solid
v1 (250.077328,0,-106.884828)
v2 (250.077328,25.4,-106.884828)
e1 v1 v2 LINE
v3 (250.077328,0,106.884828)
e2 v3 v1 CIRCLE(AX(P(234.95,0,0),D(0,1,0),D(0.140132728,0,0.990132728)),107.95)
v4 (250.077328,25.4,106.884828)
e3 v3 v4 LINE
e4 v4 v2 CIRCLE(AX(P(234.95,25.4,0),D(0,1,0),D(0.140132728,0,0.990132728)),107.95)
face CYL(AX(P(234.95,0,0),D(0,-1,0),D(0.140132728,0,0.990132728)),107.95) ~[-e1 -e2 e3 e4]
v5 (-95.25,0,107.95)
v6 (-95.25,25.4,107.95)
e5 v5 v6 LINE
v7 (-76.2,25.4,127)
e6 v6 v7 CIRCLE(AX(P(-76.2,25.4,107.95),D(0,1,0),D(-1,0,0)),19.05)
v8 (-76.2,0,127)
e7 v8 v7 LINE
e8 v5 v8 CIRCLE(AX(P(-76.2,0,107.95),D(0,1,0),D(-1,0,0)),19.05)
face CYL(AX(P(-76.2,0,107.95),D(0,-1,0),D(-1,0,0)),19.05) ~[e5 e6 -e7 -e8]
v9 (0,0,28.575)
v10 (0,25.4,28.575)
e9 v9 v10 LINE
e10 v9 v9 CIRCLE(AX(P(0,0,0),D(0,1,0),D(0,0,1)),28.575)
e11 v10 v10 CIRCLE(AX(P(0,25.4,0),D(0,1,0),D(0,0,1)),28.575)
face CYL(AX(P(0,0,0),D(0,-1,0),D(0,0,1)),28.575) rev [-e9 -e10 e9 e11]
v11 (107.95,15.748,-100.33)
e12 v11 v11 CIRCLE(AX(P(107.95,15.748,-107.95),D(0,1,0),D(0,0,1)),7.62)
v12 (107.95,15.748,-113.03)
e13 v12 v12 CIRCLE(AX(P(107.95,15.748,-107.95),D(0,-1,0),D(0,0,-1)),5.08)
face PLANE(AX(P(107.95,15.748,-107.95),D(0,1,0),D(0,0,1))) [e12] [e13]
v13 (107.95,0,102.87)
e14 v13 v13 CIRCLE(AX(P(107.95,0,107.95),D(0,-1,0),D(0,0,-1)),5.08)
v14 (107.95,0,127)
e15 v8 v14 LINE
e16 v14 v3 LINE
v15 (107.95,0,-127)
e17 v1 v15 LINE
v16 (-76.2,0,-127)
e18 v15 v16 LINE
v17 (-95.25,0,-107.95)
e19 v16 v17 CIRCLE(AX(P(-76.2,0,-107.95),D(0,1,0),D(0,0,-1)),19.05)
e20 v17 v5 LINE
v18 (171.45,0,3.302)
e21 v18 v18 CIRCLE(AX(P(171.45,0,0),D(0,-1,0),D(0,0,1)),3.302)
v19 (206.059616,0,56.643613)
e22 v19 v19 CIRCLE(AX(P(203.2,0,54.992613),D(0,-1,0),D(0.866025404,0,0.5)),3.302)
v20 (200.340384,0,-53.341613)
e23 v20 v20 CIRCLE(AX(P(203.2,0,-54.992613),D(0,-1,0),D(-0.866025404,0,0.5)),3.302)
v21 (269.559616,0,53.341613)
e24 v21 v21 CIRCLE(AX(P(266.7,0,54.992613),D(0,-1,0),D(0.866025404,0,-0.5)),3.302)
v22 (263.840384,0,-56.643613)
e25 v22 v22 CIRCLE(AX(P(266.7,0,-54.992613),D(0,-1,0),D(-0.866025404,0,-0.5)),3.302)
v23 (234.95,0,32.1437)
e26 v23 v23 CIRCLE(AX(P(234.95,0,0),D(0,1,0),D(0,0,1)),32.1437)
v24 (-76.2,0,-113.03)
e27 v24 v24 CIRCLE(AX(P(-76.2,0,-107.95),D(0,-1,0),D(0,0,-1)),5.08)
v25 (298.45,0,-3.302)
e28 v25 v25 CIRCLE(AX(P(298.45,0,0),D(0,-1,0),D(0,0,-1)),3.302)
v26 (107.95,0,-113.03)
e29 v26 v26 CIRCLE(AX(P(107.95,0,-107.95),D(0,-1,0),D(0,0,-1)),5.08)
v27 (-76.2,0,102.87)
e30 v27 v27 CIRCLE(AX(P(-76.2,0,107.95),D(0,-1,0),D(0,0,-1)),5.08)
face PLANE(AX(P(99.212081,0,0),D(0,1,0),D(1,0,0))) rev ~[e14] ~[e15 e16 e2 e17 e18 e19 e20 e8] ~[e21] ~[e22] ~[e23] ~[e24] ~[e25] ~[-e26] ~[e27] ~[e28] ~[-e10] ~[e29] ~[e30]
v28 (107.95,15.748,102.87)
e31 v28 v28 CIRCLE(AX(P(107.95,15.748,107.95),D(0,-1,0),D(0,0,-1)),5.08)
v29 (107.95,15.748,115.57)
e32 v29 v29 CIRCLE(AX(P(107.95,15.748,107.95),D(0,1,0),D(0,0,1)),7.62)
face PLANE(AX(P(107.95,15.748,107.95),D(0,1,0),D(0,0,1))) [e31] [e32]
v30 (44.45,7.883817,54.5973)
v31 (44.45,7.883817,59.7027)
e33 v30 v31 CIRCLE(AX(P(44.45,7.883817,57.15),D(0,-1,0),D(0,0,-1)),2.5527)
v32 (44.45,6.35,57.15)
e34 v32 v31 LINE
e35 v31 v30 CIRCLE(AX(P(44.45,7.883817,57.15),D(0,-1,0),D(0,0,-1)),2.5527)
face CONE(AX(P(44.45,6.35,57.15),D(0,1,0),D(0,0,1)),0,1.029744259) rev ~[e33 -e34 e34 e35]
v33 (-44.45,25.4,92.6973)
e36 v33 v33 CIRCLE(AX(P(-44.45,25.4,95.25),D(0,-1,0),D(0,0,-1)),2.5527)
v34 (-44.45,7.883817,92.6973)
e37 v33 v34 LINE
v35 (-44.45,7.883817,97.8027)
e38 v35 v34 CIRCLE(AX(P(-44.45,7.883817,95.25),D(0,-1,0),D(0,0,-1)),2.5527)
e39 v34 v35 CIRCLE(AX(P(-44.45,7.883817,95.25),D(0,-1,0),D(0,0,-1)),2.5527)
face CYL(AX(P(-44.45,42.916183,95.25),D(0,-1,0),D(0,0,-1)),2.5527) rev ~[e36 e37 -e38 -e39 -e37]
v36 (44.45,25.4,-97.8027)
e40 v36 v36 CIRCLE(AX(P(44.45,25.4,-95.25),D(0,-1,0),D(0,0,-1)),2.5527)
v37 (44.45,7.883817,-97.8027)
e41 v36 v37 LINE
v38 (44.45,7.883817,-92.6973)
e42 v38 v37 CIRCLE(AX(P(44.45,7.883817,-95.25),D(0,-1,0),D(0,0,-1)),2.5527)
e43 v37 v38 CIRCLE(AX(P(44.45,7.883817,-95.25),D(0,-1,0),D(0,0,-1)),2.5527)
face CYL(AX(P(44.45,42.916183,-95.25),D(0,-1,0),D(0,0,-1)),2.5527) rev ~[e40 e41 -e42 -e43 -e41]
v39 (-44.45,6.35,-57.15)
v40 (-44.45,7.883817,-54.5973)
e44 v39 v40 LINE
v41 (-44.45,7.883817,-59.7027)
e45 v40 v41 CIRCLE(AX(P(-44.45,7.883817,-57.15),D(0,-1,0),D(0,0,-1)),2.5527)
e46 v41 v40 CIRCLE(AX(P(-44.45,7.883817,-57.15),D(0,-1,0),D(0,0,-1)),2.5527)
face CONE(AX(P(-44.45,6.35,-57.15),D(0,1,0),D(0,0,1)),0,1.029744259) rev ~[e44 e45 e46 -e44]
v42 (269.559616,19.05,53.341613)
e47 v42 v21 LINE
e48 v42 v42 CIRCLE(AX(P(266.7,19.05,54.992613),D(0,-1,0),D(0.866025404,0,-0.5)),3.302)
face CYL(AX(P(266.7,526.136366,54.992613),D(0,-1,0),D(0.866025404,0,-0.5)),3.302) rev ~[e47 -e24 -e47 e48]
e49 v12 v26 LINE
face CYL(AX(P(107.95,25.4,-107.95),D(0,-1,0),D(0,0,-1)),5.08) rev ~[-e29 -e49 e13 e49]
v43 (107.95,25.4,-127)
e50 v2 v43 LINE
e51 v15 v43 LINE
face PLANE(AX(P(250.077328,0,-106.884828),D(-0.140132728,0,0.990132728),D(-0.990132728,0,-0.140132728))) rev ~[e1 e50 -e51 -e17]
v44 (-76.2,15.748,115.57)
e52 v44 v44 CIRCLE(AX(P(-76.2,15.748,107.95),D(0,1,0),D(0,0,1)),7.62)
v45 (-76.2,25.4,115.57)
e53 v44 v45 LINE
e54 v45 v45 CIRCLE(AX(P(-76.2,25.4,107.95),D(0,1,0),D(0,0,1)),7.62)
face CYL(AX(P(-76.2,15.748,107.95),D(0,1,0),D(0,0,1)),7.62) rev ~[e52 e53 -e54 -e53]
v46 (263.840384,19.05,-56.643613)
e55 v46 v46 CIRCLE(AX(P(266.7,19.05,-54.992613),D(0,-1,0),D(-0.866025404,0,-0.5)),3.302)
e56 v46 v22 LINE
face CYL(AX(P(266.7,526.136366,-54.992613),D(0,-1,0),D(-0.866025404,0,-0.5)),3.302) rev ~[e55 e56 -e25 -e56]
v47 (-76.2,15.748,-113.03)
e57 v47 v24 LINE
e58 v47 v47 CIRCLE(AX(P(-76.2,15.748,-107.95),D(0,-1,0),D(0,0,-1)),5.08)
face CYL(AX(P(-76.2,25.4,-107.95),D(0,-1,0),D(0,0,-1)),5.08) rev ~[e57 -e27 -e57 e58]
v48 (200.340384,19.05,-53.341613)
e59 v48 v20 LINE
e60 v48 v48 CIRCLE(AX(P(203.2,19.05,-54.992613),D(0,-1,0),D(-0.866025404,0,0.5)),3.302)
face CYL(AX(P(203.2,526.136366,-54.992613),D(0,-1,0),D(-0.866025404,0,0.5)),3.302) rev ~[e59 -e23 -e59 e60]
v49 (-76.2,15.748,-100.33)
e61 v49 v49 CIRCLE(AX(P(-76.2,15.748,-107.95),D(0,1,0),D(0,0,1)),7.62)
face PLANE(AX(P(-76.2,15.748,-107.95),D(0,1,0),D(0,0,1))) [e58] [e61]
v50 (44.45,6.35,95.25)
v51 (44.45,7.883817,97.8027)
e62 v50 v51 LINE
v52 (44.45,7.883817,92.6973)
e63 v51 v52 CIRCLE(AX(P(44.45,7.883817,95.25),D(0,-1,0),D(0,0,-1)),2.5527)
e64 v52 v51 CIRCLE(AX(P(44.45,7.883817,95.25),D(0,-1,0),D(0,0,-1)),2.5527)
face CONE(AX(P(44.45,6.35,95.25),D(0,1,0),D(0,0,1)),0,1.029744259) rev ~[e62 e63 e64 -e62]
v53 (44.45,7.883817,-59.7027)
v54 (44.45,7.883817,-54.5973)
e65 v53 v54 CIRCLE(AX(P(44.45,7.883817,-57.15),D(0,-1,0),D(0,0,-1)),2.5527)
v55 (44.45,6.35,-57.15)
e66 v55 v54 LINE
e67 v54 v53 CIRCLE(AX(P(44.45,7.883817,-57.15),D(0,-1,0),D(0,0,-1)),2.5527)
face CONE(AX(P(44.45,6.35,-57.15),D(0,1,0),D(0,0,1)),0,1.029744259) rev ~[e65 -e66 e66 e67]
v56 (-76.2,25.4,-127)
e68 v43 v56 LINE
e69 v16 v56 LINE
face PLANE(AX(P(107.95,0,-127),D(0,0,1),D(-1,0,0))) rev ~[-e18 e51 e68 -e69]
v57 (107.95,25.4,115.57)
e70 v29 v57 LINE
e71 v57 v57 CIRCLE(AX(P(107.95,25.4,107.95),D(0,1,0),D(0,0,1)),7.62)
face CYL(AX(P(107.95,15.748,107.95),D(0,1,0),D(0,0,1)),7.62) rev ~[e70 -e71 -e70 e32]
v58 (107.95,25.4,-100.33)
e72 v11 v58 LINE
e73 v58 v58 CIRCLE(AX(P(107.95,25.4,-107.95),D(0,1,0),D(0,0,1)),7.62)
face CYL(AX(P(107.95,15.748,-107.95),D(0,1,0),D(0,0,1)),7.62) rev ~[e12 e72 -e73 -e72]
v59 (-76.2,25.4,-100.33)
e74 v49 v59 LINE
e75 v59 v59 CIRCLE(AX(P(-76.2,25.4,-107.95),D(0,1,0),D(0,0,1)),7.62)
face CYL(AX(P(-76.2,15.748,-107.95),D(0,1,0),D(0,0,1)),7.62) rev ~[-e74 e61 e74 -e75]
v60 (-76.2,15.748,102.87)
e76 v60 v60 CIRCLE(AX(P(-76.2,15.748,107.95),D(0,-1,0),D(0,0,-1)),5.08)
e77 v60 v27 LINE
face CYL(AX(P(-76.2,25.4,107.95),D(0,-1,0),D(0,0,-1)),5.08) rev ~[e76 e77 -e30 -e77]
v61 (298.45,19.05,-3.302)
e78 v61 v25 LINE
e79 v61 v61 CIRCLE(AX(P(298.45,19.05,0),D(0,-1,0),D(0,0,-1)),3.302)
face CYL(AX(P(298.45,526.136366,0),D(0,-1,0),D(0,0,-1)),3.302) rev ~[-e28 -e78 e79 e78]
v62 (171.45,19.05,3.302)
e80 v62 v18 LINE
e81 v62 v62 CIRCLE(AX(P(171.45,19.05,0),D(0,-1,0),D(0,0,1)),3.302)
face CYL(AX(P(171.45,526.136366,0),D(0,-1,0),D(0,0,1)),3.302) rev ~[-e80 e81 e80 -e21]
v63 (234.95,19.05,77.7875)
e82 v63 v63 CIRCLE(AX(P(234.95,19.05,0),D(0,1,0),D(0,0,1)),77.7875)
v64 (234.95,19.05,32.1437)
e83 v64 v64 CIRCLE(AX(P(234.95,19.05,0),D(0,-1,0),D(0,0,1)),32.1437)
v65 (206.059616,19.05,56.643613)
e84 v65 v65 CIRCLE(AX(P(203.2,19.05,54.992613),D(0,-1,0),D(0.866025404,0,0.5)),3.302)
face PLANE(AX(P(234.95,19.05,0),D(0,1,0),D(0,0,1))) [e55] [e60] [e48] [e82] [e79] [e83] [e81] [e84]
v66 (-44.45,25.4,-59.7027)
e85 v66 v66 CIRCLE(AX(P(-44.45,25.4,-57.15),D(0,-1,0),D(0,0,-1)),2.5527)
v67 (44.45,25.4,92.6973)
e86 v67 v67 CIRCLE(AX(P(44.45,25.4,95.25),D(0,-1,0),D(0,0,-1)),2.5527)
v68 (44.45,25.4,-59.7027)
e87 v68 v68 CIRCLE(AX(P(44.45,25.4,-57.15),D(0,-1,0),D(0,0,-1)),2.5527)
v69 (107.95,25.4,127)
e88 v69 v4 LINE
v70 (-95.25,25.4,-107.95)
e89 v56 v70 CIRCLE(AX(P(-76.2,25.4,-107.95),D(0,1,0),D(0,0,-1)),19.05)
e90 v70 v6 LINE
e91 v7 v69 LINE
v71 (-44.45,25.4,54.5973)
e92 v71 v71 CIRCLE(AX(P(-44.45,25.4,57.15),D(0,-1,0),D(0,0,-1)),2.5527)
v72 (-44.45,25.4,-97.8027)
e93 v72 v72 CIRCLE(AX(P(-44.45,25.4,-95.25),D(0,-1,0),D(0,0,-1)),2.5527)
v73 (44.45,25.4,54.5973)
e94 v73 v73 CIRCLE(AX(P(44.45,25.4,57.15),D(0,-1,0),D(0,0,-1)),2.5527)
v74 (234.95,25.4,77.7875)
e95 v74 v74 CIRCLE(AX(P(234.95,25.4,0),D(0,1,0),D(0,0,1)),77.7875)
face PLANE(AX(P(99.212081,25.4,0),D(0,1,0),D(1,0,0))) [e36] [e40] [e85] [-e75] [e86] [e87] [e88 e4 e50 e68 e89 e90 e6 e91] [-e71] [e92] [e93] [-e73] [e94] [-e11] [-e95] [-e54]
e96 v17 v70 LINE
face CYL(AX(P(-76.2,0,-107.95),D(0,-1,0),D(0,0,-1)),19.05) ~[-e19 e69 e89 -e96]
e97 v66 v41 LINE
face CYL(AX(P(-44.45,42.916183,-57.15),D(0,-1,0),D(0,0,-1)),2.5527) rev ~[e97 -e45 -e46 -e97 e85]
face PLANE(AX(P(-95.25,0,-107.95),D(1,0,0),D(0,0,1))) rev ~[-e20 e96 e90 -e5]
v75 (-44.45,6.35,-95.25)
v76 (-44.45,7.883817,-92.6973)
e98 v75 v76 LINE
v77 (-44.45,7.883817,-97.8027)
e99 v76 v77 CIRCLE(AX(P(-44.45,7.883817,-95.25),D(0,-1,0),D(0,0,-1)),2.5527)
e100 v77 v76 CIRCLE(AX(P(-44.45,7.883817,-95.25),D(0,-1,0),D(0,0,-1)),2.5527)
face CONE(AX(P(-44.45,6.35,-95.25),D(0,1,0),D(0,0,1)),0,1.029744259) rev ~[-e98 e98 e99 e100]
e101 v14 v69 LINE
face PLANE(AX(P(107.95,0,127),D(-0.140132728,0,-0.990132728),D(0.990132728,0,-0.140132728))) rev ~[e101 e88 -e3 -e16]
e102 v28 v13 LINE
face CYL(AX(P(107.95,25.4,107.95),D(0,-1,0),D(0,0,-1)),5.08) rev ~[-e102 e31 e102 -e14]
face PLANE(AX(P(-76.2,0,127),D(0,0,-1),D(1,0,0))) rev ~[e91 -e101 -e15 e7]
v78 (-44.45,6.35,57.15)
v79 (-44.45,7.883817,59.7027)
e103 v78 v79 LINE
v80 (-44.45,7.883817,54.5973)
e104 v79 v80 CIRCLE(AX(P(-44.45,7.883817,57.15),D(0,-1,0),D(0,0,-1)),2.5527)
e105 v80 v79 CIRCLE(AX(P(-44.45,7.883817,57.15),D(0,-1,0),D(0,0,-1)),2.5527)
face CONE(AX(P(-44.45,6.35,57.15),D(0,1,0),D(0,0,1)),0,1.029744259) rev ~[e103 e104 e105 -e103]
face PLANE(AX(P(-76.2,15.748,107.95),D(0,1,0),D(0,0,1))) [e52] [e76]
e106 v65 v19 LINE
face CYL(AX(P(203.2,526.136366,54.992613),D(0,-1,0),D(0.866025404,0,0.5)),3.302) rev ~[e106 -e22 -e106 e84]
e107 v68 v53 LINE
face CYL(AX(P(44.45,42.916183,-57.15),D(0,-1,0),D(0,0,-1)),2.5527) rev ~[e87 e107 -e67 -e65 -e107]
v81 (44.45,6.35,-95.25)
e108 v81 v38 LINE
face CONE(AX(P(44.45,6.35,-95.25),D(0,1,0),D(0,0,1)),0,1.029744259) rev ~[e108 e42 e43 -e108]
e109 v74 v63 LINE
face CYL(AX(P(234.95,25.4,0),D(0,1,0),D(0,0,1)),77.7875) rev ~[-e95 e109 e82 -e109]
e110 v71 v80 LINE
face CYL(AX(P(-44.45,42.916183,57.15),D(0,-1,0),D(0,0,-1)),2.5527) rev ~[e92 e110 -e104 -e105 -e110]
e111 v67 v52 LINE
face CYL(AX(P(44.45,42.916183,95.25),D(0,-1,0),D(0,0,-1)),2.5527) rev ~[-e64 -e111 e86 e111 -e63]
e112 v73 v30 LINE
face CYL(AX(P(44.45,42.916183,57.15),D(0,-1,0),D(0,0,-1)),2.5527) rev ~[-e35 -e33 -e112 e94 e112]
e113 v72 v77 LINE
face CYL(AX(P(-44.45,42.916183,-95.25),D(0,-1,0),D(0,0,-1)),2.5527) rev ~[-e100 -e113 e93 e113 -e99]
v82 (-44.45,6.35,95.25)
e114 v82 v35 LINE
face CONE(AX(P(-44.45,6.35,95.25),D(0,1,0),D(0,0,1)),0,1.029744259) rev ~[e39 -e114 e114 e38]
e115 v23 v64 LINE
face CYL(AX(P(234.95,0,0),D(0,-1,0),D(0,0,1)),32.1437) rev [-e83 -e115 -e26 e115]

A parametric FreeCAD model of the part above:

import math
import FreeCAD as App
import Part
import Sketcher

V = App.Vector
Q = App.Units.Quantity

doc = App.newDocument("Part")
body = doc.addObject("PartDesign::Body", "Body")

sketch1 = body.newObject("Sketcher::SketchObject", "Sketch")
sketch1.AttachmentSupport = (doc.getObject("XZ_Plane"), [""])
sketch1.MapMode = "FlatFace"
sketch1.addGeometry([
    Part.LineSegment(V(-95.25, -107.95, 0), V(-95.25, 107.95, 0)),
    Part.ArcOfCircle(Part.Circle(V(-76.2, 107.95, 0), V(0, 0, 1), 19.05), math.radians(90), math.radians(180)),
    Part.LineSegment(V(-76.2, 127, 0), V(107.95, 127, 0)),
    Part.LineSegment(V(107.95, 127, 0), V(250.077328, 106.884828, 0)),
    Part.ArcOfCircle(Part.Circle(V(234.95, 0, 0), V(0, 0, 1), 107.95), math.radians(-81.944473), math.radians(81.944473)),
    Part.LineSegment(V(250.077328, -106.884828, 0), V(107.95, -127, 0)),
    Part.LineSegment(V(107.95, -127, 0), V(-76.2, -127, 0)),
    Part.ArcOfCircle(Part.Circle(V(-76.2, -107.95, 0), V(0, 0, 1), 19.05), math.radians(180), math.radians(270)),
    Part.Circle(V(0, 0, 0), V(0, 0, 1), 28.575),
    Part.Circle(V(234.95, 0, 0), V(0, 0, 1), 32.1437),
], False)
sketch1.addConstraint([
    Sketcher.Constraint("Tangent", 0, 2, 1, 2),
    Sketcher.Constraint("Tangent", 1, 1, 2, 1),
    Sketcher.Constraint("Coincident", 2, 2, 3, 1),
    Sketcher.Constraint("Tangent", 3, 2, 4, 2),
    Sketcher.Constraint("Tangent", 4, 1, 5, 1),
    Sketcher.Constraint("Coincident", 5, 2, 6, 1),
    Sketcher.Constraint("Tangent", 6, 2, 7, 2),
    Sketcher.Constraint("Tangent", 7, 1, 0, 1),
    Sketcher.Constraint("Vertical", 0),
    Sketcher.Constraint("Horizontal", 2),
    Sketcher.Constraint("Horizontal", 6),
    Sketcher.Constraint("Coincident", 8, 3, -1, 1),
    Sketcher.Constraint("Coincident", 9, 3, 4, 3),
    Sketcher.Constraint("Equal", 1, 7),
    Sketcher.Constraint("Symmetric", 3, 2, 4, 1, -1),
    Sketcher.Constraint("Vertical", 2, 2, 5, 2),
    Sketcher.Constraint("Diameter", 8, Q("2.25 in")),
    Sketcher.Constraint("Radius", 1, Q("0.75 in")),
    Sketcher.Constraint("Radius", 4, Q("4.25 in")),
    Sketcher.Constraint("Diameter", 9, Q("2.531 in")),
    Sketcher.Constraint("DistanceY", 0, 1, 0, 2, Q("8.5 in")),
    Sketcher.Constraint("DistanceX", 1, 3, -1, 1, Q("3 in")),
    Sketcher.Constraint("DistanceX", 0, 2, 4, 3, Q("13 in")),
    Sketcher.Constraint("DistanceX", 2, 2, 4, 3, Q("5 in")),
])
pad1 = body.newObject("PartDesign::Pad", "Pad")
pad1.Profile = sketch1
pad1.Length = Q("1 in")
pad1.Reversed = True

sketch2 = body.newObject("Sketcher::SketchObject", "Sketch001")
sketch2.AttachmentSupport = (doc.getObject("XZ_Plane"), [""])
sketch2.MapMode = "FlatFace"
sketch2.AttachmentOffset = App.Placement(V(0, 0, -1 * 25.4), App.Rotation())
sketch2.addGeometry([
    Part.Circle(V(-76.2, -107.95, 0), V(0, 0, 1), 5.08),
    Part.Circle(V(-76.2, 107.95, 0), V(0, 0, 1), 5.08),
    Part.Circle(V(107.95, -107.95, 0), V(0, 0, 1), 5.08),
    Part.Circle(V(107.95, 107.95, 0), V(0, 0, 1), 5.08),
], False)
sketch2.addConstraint([
    Sketcher.Constraint("Equal", 0, 1),
    Sketcher.Constraint("Equal", 1, 2),
    Sketcher.Constraint("Equal", 2, 3),
    Sketcher.Constraint("Symmetric", 0, 3, 1, 3, -1),
    Sketcher.Constraint("Symmetric", 2, 3, 3, 3, -1),
    Sketcher.Constraint("Horizontal", 0, 3, 2, 3),
    Sketcher.Constraint("Diameter", 0, Q("0.4 in")),
    Sketcher.Constraint("DistanceX", 0, 3, -1, 1, Q("3 in")),
    Sketcher.Constraint("DistanceY", 0, 3, 1, 3, Q("8.5 in")),
    Sketcher.Constraint("DistanceX", -1, 1, 2, 3, Q("4.25 in")),
])
doc.recompute()
hole = body.newObject("PartDesign::Hole", "Hole")
hole.Profile = sketch2
hole.ThreadType = "None"
hole.Diameter = Q("0.4 in")
hole.DepthType = "ThroughAll"
hole.HoleCutType = "Counterbore"
hole.HoleCutDiameter = Q("0.6 in")
hole.HoleCutDepth = Q("0.38 in")
hole.Reversed = True

sketch3 = body.newObject("Sketcher::SketchObject", "Sketch002")
sketch3.AttachmentSupport = (doc.getObject("XZ_Plane"), [""])
sketch3.MapMode = "FlatFace"
sketch3.AttachmentOffset = App.Placement(V(0, 0, -1 * 25.4), App.Rotation())
sketch3.addGeometry([
    Part.Circle(V(-44.45, -95.25, 0), V(0, 0, 1), 2.5527),
    Part.Circle(V(44.45, -95.25, 0), V(0, 0, 1), 2.5527),
    Part.Circle(V(44.45, -57.15, 0), V(0, 0, 1), 2.5527),
    Part.Circle(V(-44.45, -57.15, 0), V(0, 0, 1), 2.5527),
    Part.Circle(V(-44.45, 57.15, 0), V(0, 0, 1), 2.5527),
    Part.Circle(V(44.45, 57.15, 0), V(0, 0, 1), 2.5527),
    Part.Circle(V(44.45, 95.25, 0), V(0, 0, 1), 2.5527),
    Part.Circle(V(-44.45, 95.25, 0), V(0, 0, 1), 2.5527),
], False)
sketch3.addConstraint([
    Sketcher.Constraint("Equal", 0, 1),
    Sketcher.Constraint("Equal", 1, 2),
    Sketcher.Constraint("Equal", 2, 3),
    Sketcher.Constraint("Equal", 3, 4),
    Sketcher.Constraint("Equal", 4, 5),
    Sketcher.Constraint("Equal", 5, 6),
    Sketcher.Constraint("Equal", 6, 7),
    Sketcher.Constraint("Symmetric", 2, 3, 4, 3, -1, 1),
    Sketcher.Constraint("Symmetric", 3, 3, 5, 3, -1, 1),
    Sketcher.Constraint("Symmetric", 0, 3, 6, 3, -1, 1),
    Sketcher.Constraint("Symmetric", 1, 3, 7, 3, -1, 1),
    Sketcher.Constraint("Symmetric", 0, 3, 1, 3, -2),
    Sketcher.Constraint("Symmetric", 2, 3, 3, 3, -2),
    Sketcher.Constraint("Vertical", 1, 3, 2, 3),
    Sketcher.Constraint("Diameter", 0, Q("0.201 in")),
    Sketcher.Constraint("DistanceY", 0, 3, 4, 3, Q("6 in")),
    Sketcher.Constraint("DistanceX", 0, 3, 1, 3, Q("3.5 in")),
    Sketcher.Constraint("DistanceY", 1, 3, 2, 3, Q("1.5 in")),
])
doc.recompute()
hole2 = body.newObject("PartDesign::Hole", "Hole001")
hole2.Profile = sketch3
hole2.ThreadType = "None"
hole2.Diameter = Q("0.201 in")
hole2.DepthType = "Dimension"
hole2.Depth = 17.516183
hole2.DrillPoint = "Angled"
hole2.DrillPointAngle = 118
hole2.Reversed = True

sketch4 = body.newObject("Sketcher::SketchObject", "Sketch003")
sketch4.AttachmentSupport = (doc.getObject("XZ_Plane"), [""])
sketch4.MapMode = "FlatFace"
sketch4.AttachmentOffset = App.Placement(V(0, 0, -1 * 25.4), App.Rotation())
sketch4.addGeometry(Part.Circle(V(234.95, 0, 0), V(0, 0, 1), 77.7875), False)
sketch4.addConstraint([
    Sketcher.Constraint("PointOnObject", 0, 3, -1),
    Sketcher.Constraint("Diameter", 0, Q("6.125 in")),
    Sketcher.Constraint("DistanceX", -1, 1, 0, 3, Q("9.25 in")),
])
pocket1 = body.newObject("PartDesign::Pocket", "Pocket")
pocket1.Profile = sketch4
pocket1.Length = Q("0.25 in")
pocket1.Reversed = True

sketch5 = body.newObject("Sketcher::SketchObject", "Sketch004")
sketch5.AttachmentSupport = (doc.getObject("XZ_Plane"), [""])
sketch5.MapMode = "FlatFace"
sketch5.AttachmentOffset = App.Placement(V(0, 0, -0.75 * 25.4), App.Rotation())
sketch5.addGeometry(Part.Circle(V(298.45, 0, 0), V(0, 0, 1), 3.302), False)
sketch5.addConstraint([
    Sketcher.Constraint("PointOnObject", 0, 3, -1),
    Sketcher.Constraint("Diameter", 0, Q("0.26 in")),
    Sketcher.Constraint("DistanceX", -1, 1, 0, 3, Q("11.75 in")),
])
doc.recompute()
hole3 = body.newObject("PartDesign::Hole", "Hole002")
hole3.Profile = sketch5
hole3.ThreadType = "None"
hole3.Diameter = Q("0.26 in")
hole3.DepthType = "ThroughAll"
hole3.Reversed = True
doc.recompute()

datumline = body.newObject("PartDesign::Line", "DatumLine")
datumline.Placement = App.Placement(V(234.95, 0, 0), App.Rotation(V(0, 0, 1), V(0, 1, 0)))
polarpattern = body.newObject("PartDesign::PolarPattern", "PolarPattern")
polarpattern.Originals = [hole3]
polarpattern.Axis = (datumline, [""])
polarpattern.Angle = 360
polarpattern.Occurrences = 6
body.Tip = polarpattern

doc.recompute()
